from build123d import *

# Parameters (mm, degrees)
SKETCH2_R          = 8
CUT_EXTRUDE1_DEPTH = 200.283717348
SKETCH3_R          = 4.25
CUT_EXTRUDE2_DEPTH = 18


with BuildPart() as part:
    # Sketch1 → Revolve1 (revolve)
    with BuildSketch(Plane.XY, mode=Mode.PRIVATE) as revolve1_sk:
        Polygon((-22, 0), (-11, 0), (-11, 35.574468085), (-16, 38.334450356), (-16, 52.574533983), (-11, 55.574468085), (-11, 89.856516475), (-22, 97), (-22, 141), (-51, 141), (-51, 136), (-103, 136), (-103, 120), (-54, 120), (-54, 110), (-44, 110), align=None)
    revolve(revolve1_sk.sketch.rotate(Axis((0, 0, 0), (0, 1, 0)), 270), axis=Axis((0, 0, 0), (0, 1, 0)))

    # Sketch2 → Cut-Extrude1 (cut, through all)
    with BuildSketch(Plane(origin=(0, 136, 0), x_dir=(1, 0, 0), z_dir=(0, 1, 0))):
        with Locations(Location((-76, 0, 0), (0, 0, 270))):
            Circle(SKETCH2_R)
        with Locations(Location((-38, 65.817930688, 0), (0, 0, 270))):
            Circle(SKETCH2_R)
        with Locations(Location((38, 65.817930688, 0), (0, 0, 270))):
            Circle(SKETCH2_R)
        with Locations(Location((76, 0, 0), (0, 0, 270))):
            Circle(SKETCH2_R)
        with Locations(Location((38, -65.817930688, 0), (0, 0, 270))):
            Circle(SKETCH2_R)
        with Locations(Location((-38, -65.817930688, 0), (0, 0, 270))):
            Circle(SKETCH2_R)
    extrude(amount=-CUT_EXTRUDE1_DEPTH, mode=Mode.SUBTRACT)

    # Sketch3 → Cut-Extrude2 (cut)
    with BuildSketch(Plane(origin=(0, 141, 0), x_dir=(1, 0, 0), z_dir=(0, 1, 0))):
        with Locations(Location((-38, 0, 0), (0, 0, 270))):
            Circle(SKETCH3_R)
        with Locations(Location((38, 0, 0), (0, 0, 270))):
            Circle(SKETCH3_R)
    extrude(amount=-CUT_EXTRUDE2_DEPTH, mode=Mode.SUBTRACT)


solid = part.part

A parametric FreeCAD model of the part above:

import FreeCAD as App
import Part
import Sketcher

V = App.Vector
Q = App.Units.Quantity

doc = App.newDocument("Part")
body = doc.addObject("PartDesign::Body", "Body")

# Sketch on XY plane
sketch1 = body.newObject("Sketcher::SketchObject", "Sketch")
sketch1.AttachmentSupport = (doc.getObject("XY_Plane"), [""])
sketch1.MapMode = "FlatFace"
sketch1.addGeometry(Part.LineSegment(V(-22, 0, 0), V(-11, 0, 0)), False)
sketch1.addGeometry(Part.LineSegment(V(-11, 0, 0), V(-11, 36, 0)), False)
sketch1.addGeometry(Part.LineSegment(V(-11, 36, 0), V(-16, 38, 0)), False)
sketch1.addGeometry(Part.LineSegment(V(-16, 38, 0), V(-16, 53, 0)), False)
sketch1.addGeometry(Part.LineSegment(V(-16, 53, 0), V(-11, 56, 0)), False)
sketch1.addGeometry(Part.LineSegment(V(-11, 56, 0), V(-11, 90, 0)), False)
sketch1.addGeometry(Part.LineSegment(V(-11, 90, 0), V(-22, 97, 0)), False)
sketch1.addGeometry(Part.LineSegment(V(-22, 97, 0), V(-22, 141, 0)), False)
sketch1.addGeometry(Part.LineSegment(V(-22, 141, 0), V(-51, 141, 0)), False)
sketch1.addGeometry(Part.LineSegment(V(-51, 141, 0), V(-51, 136, 0)), False)
sketch1.addGeometry(Part.LineSegment(V(-51, 136, 0), V(-103, 136, 0)), False)
sketch1.addGeometry(Part.LineSegment(V(-103, 136, 0), V(-103, 120, 0)), False)
sketch1.addGeometry(Part.LineSegment(V(-103, 120, 0), V(-54, 120, 0)), False)
sketch1.addGeometry(Part.LineSegment(V(-54, 120, 0), V(-54, 110, 0)), False)
sketch1.addGeometry(Part.LineSegment(V(-54, 110, 0), V(-44, 110, 0)), False)
sketch1.addGeometry(Part.LineSegment(V(-44, 110, 0), V(-22, 0, 0)), False)
sketch1.addConstraint(Sketcher.Constraint("Coincident", 0, 2, 1, 1))
sketch1.addConstraint(Sketcher.Constraint("Coincident", 1, 2, 2, 1))
sketch1.addConstraint(Sketcher.Constraint("Coincident", 2, 2, 3, 1))
sketch1.addConstraint(Sketcher.Constraint("Coincident", 3, 2, 4, 1))
sketch1.addConstraint(Sketcher.Constraint("Coincident", 4, 2, 5, 1))
sketch1.addConstraint(Sketcher.Constraint("Coincident", 5, 2, 6, 1))
sketch1.addConstraint(Sketcher.Constraint("Coincident", 6, 2, 7, 1))
sketch1.addConstraint(Sketcher.Constraint("Coincident", 7, 2, 8, 1))
sketch1.addConstraint(Sketcher.Constraint("Coincident", 8, 2, 9, 1))
sketch1.addConstraint(Sketcher.Constraint("Coincident", 9, 2, 10, 1))
sketch1.addConstraint(Sketcher.Constraint("Coincident", 10, 2, 11, 1))
sketch1.addConstraint(Sketcher.Constraint("Coincident", 11, 2, 12, 1))
sketch1.addConstraint(Sketcher.Constraint("Coincident", 12, 2, 13, 1))
sketch1.addConstraint(Sketcher.Constraint("Coincident", 13, 2, 14, 1))
sketch1.addConstraint(Sketcher.Constraint("Coincident", 14, 2, 15, 1))
sketch1.addConstraint(Sketcher.Constraint("Coincident", 15, 2, 0, 1))
sketch1.addConstraint(Sketcher.Constraint("Horizontal", 0))
sketch1.addConstraint(Sketcher.Constraint("Vertical", 1))
sketch1.addConstraint(Sketcher.Constraint("Vertical", 3))
sketch1.addConstraint(Sketcher.Constraint("Vertical", 5))
sketch1.addConstraint(Sketcher.Constraint("Vertical", 7))
sketch1.addConstraint(Sketcher.Constraint("Horizontal", 8))
sketch1.addConstraint(Sketcher.Constraint("Vertical", 9))
sketch1.addConstraint(Sketcher.Constraint("Horizontal", 10))
sketch1.addConstraint(Sketcher.Constraint("Vertical", 11))
sketch1.addConstraint(Sketcher.Constraint("Horizontal", 12))
sketch1.addConstraint(Sketcher.Constraint("Vertical", 13))
sketch1.addConstraint(Sketcher.Constraint("Horizontal", 14))
sketch1.addConstraint(Sketcher.Constraint("PointOnObject", 0, 2, -1))
sketch1.addConstraint(Sketcher.Constraint("Vertical", 1, 2, 4, 2))
sketch1.addConstraint(Sketcher.Constraint("Vertical", 7, 2, 15, 2))
sketch1.addConstraint(Sketcher.Constraint("Equal", 14, 13))
sketch1.addConstraint(Sketcher.Constraint("DistanceX", 0, 1, 0, 2, 11.0))
sketch1.addConstraint(Sketcher.Constraint("DistanceX", 8, 2, 8, 1, 29.0))
sketch1.addConstraint(Sketcher.Constraint("DistanceX", 10, 2, 10, 1, 52.0))
sketch1.addConstraint(Sketcher.Constraint("DistanceX", 12, 1, 12, 2, 49.0))
sketch1.addConstraint(Sketcher.Constraint("DistanceX", 14, 1, 14, 2, 10.0))
sketch1.addConstraint(Sketcher.Constraint("DistanceY", 7, 1, 7, 2, 44.0))
sketch1.addConstraint(Sketcher.Constraint("DistanceY", 9, 2, 9, 1, 5.0))
sketch1.addConstraint(Sketcher.Constraint("DistanceY", 11, 2, 11, 1, 16.0))
sketch1.addConstraint(Sketcher.Constraint("Angle", 6, Q("147 deg")))
sketch1.addConstraint(Sketcher.Constraint("DistanceX", 0, 2, -1, 1, 11.0))
sketch1.addConstraint(Sketcher.Constraint("DistanceX", 2, 2, -1, 1, 16.0))
sketch1.addConstraint(Sketcher.Constraint("DistanceY", -1, 1, 6, 2, 97.0))
sketch1.addConstraint(Sketcher.Constraint("DistanceY", 1, 2, 4, 2, 20.0))
sketch1.addConstraint(Sketcher.Constraint("DistanceY", 1, 1, 1, 2, 35.574468))
sketch1.addConstraint(Sketcher.Constraint("DistanceY", 3, 1, 3, 2, 14.240084))
sketch1.addConstraint(Sketcher.Constraint("DistanceY", -1, 1, 2, 2, 38.33445))
revolution = body.newObject("PartDesign::Revolution", "Revolution")
revolution.Profile = sketch1
revolution.ReferenceAxis = (sketch1, ["V_Axis"])
revolution.Angle = 360

# Sketch on XZ plane
sketch2 = body.newObject("Sketcher::SketchObject", "Sketch001")
sketch2.AttachmentSupport = (doc.getObject("XZ_Plane"), [""])
sketch2.MapMode = "FlatFace"
sketch2.AttachmentOffset = App.Placement(V(0, 0, -136), App.Rotation())
sketch2.addGeometry(Part.Circle(V(-76, 0, 0), V(0, 0, 1), 8), False)
sketch2.addGeometry(Part.Circle(V(-38, -66, 0), V(0, 0, 1), 8), False)
sketch2.addGeometry(Part.Circle(V(38, -66, 0), V(0, 0, 1), 8), False)
sketch2.addGeometry(Part.Circle(V(76, 0, 0), V(0, 0, 1), 8), False)
sketch2.addGeometry(Part.Circle(V(38, 66, 0), V(0, 0, 1), 8), False)
sketch2.addGeometry(Part.Circle(V(-38, 66, 0), V(0, 0, 1), 8), False)
sketch2.addConstraint(Sketcher.Constraint("Equal", 0, 1))
sketch2.addConstraint(Sketcher.Constraint("Equal", 1, 2))
sketch2.addConstraint(Sketcher.Constraint("Equal", 2, 3))
sketch2.addConstraint(Sketcher.Constraint("Equal", 3, 4))
sketch2.addConstraint(Sketcher.Constraint("Equal", 4, 5))
sketch2.addConstraint(Sketcher.Constraint("Symmetric", 0, 3, 3, 3, -1, 1))
sketch2.addConstraint(Sketcher.Constraint("Symmetric", 1, 3, 4, 3, -1, 1))
sketch2.addConstraint(Sketcher.Constraint("Symmetric", 2, 3, 5, 3, -1, 1))
sketch2.addConstraint(Sketcher.Constraint("Symmetric", 1, 3, 2, 3, -2))
sketch2.addConstraint(Sketcher.Constraint("PointOnObject", 0, 3, -1))
sketch2.addConstraint(Sketcher.Constraint("Diameter", 0, 16.0))
sketch2.addConstraint(Sketcher.Constraint("DistanceX", 0, 3, -1, 1, 76.0))
sketch2.addConstraint(Sketcher.Constraint("DistanceX", 1, 3, -1, 1, 38.0))
sketch2.addConstraint(Sketcher.Constraint("DistanceY", 1, 3, -1, 1, 65.817931))
pocket1 = body.newObject("PartDesign::Pocket", "Pocket")
pocket1.Profile = sketch2
pocket1.Type = "ThroughAll"
pocket1.Reversed = True

# Sketch on XZ plane
sketch3 = body.newObject("Sketcher::SketchObject", "Sketch002")
sketch3.AttachmentSupport = (doc.getObject("XZ_Plane"), [""])
sketch3.MapMode = "FlatFace"
sketch3.AttachmentOffset = App.Placement(V(0, 0, -141), App.Rotation())
sketch3.addGeometry(Part.Circle(V(-38, 0, 0), V(0, 0, 1), 4.2), False)
sketch3.addGeometry(Part.Circle(V(38, 0, 0), V(0, 0, 1), 4.2), False)
sketch3.addConstraint(Sketcher.Constraint("Equal", 0, 1))
sketch3.addConstraint(Sketcher.Constraint("Symmetric", 0, 3, 1, 3, -1, 1))
sketch3.addConstraint(Sketcher.Constraint("PointOnObject", 0, 3, -1))
sketch3.addConstraint(Sketcher.Constraint("Diameter", 0, 8.5))
sketch3.addConstraint(Sketcher.Constraint("DistanceX", 0, 3, -1, 1, 38.0))
pocket2 = body.newObject("PartDesign::Pocket", "Pocket001")
pocket2.Profile = sketch3
pocket2.Length = 18
pocket2.Reversed = True

doc.recompute()
